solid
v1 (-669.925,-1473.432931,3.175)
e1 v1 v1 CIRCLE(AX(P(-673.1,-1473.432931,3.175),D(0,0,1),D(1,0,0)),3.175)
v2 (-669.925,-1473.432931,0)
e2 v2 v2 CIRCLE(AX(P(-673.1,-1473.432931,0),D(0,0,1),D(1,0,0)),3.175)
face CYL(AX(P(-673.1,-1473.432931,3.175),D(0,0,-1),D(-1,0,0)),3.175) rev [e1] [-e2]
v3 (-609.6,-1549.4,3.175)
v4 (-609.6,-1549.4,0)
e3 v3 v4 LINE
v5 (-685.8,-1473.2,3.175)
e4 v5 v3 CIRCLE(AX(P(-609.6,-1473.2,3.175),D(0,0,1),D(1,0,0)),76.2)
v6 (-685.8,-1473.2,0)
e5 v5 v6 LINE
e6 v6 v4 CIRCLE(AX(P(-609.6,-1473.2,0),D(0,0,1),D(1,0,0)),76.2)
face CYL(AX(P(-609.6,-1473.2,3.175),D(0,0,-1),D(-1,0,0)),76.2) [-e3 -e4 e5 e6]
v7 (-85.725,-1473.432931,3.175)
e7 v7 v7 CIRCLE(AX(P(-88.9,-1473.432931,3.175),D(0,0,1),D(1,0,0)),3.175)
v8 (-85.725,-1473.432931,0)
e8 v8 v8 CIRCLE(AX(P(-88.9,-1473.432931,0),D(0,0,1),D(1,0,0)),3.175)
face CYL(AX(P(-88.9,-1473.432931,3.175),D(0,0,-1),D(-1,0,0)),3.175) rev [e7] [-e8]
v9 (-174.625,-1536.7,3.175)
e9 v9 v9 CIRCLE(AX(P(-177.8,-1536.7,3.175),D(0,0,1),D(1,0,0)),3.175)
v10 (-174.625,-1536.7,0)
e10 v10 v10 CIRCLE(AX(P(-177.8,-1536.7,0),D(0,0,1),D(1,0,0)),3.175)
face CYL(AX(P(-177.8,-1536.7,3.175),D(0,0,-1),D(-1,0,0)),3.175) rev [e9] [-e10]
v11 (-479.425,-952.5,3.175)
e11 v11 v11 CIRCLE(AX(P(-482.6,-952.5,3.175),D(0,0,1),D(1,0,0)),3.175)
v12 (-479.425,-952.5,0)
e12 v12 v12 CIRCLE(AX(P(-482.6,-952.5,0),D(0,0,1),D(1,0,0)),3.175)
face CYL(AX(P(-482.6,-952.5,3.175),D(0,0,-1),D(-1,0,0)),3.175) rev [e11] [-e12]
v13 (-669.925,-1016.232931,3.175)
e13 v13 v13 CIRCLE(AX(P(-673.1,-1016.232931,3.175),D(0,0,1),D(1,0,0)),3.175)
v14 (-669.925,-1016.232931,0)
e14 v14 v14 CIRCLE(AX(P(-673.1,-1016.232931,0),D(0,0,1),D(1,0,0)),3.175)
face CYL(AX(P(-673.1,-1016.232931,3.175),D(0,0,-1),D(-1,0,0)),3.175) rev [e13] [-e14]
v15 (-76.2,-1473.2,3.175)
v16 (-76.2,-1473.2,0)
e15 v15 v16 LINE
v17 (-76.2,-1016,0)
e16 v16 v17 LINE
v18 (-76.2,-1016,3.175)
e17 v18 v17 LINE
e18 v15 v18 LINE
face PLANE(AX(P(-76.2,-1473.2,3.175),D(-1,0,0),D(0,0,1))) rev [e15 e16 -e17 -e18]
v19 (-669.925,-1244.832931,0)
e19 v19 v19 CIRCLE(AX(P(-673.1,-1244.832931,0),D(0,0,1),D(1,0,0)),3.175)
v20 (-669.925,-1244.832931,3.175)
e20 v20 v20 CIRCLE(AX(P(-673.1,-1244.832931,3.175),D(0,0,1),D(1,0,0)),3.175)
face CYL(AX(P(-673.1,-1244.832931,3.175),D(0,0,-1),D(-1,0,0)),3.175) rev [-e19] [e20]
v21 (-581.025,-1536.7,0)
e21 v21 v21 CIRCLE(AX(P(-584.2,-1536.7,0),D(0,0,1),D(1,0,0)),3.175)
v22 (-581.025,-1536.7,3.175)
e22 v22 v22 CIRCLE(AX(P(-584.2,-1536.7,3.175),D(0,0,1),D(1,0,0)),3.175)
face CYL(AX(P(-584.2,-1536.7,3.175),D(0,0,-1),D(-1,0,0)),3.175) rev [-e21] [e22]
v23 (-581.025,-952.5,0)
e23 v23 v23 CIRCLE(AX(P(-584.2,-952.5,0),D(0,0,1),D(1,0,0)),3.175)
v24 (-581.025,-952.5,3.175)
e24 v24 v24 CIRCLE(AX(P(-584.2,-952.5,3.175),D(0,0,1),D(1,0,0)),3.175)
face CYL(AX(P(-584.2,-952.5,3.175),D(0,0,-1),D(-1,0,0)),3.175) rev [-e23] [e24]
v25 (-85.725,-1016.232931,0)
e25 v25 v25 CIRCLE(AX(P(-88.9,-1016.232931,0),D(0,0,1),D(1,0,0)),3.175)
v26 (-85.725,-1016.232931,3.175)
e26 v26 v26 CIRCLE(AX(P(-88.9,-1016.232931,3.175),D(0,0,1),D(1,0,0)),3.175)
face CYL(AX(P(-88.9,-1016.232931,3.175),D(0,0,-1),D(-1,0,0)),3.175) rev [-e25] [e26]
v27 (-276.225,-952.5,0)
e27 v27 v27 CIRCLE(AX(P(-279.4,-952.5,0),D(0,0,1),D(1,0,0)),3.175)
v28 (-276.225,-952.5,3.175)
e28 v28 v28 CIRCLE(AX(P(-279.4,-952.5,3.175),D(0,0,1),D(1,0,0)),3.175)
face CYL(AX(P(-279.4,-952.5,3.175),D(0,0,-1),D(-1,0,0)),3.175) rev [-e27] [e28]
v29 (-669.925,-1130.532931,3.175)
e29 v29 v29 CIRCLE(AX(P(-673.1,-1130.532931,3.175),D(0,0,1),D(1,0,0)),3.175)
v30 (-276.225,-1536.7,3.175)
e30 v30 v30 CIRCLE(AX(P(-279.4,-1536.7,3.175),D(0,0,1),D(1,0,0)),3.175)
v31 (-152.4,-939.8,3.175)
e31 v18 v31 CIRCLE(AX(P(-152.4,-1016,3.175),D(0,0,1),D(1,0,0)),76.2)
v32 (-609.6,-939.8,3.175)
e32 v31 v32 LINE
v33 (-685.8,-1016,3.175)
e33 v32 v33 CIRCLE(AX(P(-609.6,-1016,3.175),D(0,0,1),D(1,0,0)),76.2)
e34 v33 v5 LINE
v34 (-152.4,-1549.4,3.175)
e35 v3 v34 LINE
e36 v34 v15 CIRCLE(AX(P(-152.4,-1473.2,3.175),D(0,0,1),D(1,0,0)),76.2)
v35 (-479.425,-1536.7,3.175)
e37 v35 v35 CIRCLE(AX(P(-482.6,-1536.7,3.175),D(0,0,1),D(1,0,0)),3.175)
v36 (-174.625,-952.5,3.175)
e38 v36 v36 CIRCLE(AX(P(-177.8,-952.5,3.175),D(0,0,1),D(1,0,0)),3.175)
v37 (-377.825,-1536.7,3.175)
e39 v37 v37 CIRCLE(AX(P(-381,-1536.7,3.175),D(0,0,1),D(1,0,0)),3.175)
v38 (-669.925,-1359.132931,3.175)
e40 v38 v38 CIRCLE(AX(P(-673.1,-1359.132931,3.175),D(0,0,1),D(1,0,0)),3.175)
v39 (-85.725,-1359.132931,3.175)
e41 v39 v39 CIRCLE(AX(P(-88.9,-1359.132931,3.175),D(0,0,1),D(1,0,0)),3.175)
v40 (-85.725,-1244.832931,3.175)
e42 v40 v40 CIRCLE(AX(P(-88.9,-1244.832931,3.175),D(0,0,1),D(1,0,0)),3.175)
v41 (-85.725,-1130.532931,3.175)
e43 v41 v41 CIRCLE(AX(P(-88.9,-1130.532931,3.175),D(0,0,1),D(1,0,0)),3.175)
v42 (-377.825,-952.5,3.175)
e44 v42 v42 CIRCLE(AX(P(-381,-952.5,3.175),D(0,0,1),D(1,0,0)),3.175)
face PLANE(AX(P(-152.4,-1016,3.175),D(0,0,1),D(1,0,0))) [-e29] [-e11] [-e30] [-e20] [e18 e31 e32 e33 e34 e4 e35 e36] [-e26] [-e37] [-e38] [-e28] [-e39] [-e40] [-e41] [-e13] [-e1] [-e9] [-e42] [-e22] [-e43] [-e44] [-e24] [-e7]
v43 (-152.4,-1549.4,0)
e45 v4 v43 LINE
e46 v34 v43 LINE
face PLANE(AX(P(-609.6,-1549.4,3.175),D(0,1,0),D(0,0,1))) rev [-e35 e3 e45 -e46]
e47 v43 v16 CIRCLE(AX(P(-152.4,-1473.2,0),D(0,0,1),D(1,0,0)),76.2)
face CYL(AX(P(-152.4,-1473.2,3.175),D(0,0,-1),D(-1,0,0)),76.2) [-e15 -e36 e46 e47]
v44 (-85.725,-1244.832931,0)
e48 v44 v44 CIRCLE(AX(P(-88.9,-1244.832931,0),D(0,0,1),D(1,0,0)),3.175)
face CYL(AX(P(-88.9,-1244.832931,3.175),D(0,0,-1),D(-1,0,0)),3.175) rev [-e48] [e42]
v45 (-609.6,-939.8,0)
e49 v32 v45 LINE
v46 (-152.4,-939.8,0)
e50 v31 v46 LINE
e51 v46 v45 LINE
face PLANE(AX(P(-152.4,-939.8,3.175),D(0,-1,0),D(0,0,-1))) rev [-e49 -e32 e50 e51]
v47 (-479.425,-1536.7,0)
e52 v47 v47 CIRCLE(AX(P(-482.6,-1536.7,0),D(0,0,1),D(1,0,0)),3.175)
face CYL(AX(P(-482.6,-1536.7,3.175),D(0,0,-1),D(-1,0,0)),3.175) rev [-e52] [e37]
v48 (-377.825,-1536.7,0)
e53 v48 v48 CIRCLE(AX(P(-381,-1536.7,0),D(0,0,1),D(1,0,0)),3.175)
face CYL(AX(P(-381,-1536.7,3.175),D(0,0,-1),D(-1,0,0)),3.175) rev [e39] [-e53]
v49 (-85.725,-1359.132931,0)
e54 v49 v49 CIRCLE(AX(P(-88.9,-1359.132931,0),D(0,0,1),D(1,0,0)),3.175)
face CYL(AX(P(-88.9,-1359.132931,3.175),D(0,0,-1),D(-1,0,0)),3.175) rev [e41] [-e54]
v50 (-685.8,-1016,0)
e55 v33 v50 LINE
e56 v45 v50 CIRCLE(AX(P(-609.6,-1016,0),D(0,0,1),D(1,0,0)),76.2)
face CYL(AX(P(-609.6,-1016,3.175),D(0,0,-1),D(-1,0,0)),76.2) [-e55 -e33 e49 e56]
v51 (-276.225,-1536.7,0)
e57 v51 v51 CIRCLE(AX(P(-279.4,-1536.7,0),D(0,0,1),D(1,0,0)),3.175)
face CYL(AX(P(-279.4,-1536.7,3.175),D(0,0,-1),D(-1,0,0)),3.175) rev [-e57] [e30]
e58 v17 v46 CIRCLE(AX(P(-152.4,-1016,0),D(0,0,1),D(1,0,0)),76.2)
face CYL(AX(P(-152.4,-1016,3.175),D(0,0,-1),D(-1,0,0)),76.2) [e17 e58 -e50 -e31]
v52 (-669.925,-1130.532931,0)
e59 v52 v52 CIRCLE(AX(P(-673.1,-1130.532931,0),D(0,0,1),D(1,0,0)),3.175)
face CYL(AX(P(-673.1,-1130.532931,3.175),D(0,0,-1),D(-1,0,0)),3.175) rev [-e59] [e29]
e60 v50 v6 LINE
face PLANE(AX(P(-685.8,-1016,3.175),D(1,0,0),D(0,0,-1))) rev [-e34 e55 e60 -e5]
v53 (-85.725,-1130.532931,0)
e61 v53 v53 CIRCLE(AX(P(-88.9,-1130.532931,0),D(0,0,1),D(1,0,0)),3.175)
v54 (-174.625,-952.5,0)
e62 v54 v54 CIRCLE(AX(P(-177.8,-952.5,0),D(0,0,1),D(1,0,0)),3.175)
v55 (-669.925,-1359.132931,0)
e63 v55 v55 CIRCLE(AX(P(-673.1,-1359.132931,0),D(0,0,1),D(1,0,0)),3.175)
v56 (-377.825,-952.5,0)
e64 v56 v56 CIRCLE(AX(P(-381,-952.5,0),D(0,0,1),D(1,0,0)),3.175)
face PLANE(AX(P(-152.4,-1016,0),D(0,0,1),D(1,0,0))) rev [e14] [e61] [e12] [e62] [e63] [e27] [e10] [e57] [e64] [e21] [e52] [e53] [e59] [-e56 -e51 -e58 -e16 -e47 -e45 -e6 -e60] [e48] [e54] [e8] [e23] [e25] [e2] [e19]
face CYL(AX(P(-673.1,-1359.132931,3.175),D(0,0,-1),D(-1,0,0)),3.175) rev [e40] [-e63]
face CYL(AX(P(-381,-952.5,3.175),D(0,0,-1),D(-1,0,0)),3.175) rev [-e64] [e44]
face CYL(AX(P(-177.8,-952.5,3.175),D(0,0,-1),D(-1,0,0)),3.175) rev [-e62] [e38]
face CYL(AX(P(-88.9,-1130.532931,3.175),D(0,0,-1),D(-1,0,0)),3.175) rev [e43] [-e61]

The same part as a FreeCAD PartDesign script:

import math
import FreeCAD as App
import Part
import Sketcher

V = App.Vector
Q = App.Units.Quantity

doc = App.newDocument("Part")
body = doc.addObject("PartDesign::Body", "Body")

# Sketch on XY plane
sketch1 = doc.addObject("Sketcher::SketchObject", "Sketch")
body.addObject(sketch1)
sketch1.AttachmentSupport = (doc.XY_Plane, [""])
sketch1.MapMode = "FlatFace"
sketch1.addGeometry([
    Part.LineSegment(V(-152.4, -939.8, 0), V(-609.6, -939.8, 0)),  # 0
    Part.ArcOfCircle(Part.Circle(V(-609.6, -1016, 0), V(0, 0, 1), 76.2), math.radians(90), math.radians(180)),  # 1
    Part.LineSegment(V(-685.8, -1016, 0), V(-685.8, -1473.2, 0)),  # 2
    Part.ArcOfCircle(Part.Circle(V(-609.6, -1473.2, 0), V(0, 0, 1), 76.2), math.radians(-180), math.radians(-90)),  # 3
    Part.LineSegment(V(-609.6, -1549.4, 0), V(-152.4, -1549.4, 0)),  # 4
    Part.ArcOfCircle(Part.Circle(V(-152.4, -1473.2, 0), V(0, 0, 1), 76.2), math.radians(-90), math.radians(0)),  # 5
    Part.LineSegment(V(-76.2, -1473.2, 0), V(-76.2, -1016, 0)),  # 6
    Part.ArcOfCircle(Part.Circle(V(-152.4, -1016, 0), V(0, 0, 1), 76.2), math.radians(0), math.radians(90)),  # 7
    Part.Circle(V(-673.1, -1473.4, 0), V(0, 0, 1), 3.2),  # 8
    Part.Circle(V(-584.2, -1536.7, 0), V(0, 0, 1), 3.2),  # 9
    Part.Circle(V(-482.6, -1536.7, 0), V(0, 0, 1), 3.2),  # 10
    Part.Circle(V(-673.1, -1359.1, 0), V(0, 0, 1), 3.2),  # 11
    Part.Circle(V(-673.1, -1244.8, 0), V(0, 0, 1), 3.2),  # 12
    Part.Circle(V(-381, -1536.7, 0), V(0, 0, 1), 3.2),  # 13
    Part.Circle(V(-279.4, -1536.7, 0), V(0, 0, 1), 3.2),  # 14
    Part.Circle(V(-177.8, -1536.7, 0), V(0, 0, 1), 3.2),  # 15
    Part.Circle(V(-88.9, -1473.4, 0), V(0, 0, 1), 3.2),  # 16
    Part.Circle(V(-88.9, -1359.1, 0), V(0, 0, 1), 3.2),  # 17
    Part.Circle(V(-88.9, -1244.8, 0), V(0, 0, 1), 3.2),  # 18
    Part.Circle(V(-673.1, -1130.5, 0), V(0, 0, 1), 3.2),  # 19
    Part.Circle(V(-673.1, -1016.2, 0), V(0, 0, 1), 3.2),  # 20
    Part.Circle(V(-584.2, -952.5, 0), V(0, 0, 1), 3.2),  # 21
    Part.Circle(V(-482.6, -952.5, 0), V(0, 0, 1), 3.2),  # 22
    Part.Circle(V(-88.9, -1130.5, 0), V(0, 0, 1), 3.2),  # 23
    Part.Circle(V(-381, -952.5, 0), V(0, 0, 1), 3.2),  # 24
    Part.Circle(V(-279.4, -952.5, 0), V(0, 0, 1), 3.2),  # 25
    Part.Circle(V(-177.8, -952.5, 0), V(0, 0, 1), 3.2),  # 26
    Part.Circle(V(-88.9, -1016.2, 0), V(0, 0, 1), 3.2),  # 27
], False)
sketch1.addConstraint([
    Sketcher.Constraint("Tangent", 0, 2, 1, 1),
    Sketcher.Constraint("Tangent", 1, 2, 2, 1),
    Sketcher.Constraint("Tangent", 2, 2, 3, 1),
    Sketcher.Constraint("Tangent", 3, 2, 4, 1),
    Sketcher.Constraint("Tangent", 4, 2, 5, 1),
    Sketcher.Constraint("Tangent", 5, 2, 6, 1),
    Sketcher.Constraint("Tangent", 6, 2, 7, 1),
    Sketcher.Constraint("Tangent", 7, 2, 0, 1),
    Sketcher.Constraint("Horizontal", 0),
    Sketcher.Constraint("Vertical", 2),
    Sketcher.Constraint("Horizontal", 4),
    Sketcher.Constraint("Vertical", 6),
    Sketcher.Constraint("Equal", 1, 3),
    Sketcher.Constraint("Equal", 3, 5),
    Sketcher.Constraint("Equal", 5, 7),
    Sketcher.Constraint("Equal", 8, 9),
    Sketcher.Constraint("Equal", 9, 10),
    Sketcher.Constraint("Equal", 10, 11),
    Sketcher.Constraint("Equal", 11, 12),
    Sketcher.Constraint("Equal", 12, 13),
    Sketcher.Constraint("Equal", 13, 14),
    Sketcher.Constraint("Equal", 14, 15),
    Sketcher.Constraint("Equal", 15, 16),
    Sketcher.Constraint("Equal", 16, 17),
    Sketcher.Constraint("Equal", 17, 18),
    Sketcher.Constraint("Equal", 18, 19),
    Sketcher.Constraint("Equal", 19, 20),
    Sketcher.Constraint("Equal", 20, 21),
    Sketcher.Constraint("Equal", 21, 22),
    Sketcher.Constraint("Equal", 22, 23),
    Sketcher.Constraint("Equal", 23, 24),
    Sketcher.Constraint("Equal", 24, 25),
    Sketcher.Constraint("Equal", 25, 26),
    Sketcher.Constraint("Equal", 26, 27),
    Sketcher.Constraint("Horizontal", 9, 3, 10, 3),
    Sketcher.Constraint("Horizontal", 10, 3, 13, 3),
    Sketcher.Constraint("Horizontal", 13, 3, 14, 3),
    Sketcher.Constraint("Horizontal", 14, 3, 15, 3),
    Sketcher.Constraint("Horizontal", 8, 3, 16, 3),
    Sketcher.Constraint("Horizontal", 11, 3, 17, 3),
    Sketcher.Constraint("Horizontal", 12, 3, 18, 3),
    Sketcher.Constraint("Horizontal", 21, 3, 22, 3),
    Sketcher.Constraint("Horizontal", 19, 3, 23, 3),
    Sketcher.Constraint("Horizontal", 22, 3, 24, 3),
    Sketcher.Constraint("Horizontal", 24, 3, 25, 3),
    Sketcher.Constraint("Horizontal", 25, 3, 26, 3),
    Sketcher.Constraint("Horizontal", 20, 3, 27, 3),
    Sketcher.Constraint("Vertical", 8, 3, 11, 3),
    Sketcher.Constraint("Vertical", 11, 3, 12, 3),
    Sketcher.Constraint("Vertical", 16, 3, 17, 3),
    Sketcher.Constraint("Vertical", 17, 3, 18, 3),
    Sketcher.Constraint("Vertical", 12, 3, 19, 3),
    Sketcher.Constraint("Vertical", 19, 3, 20, 3),
    Sketcher.Constraint("Vertical", 9, 3, 21, 3),
    Sketcher.Constraint("Vertical", 10, 3, 22, 3),
    Sketcher.Constraint("Vertical", 18, 3, 23, 3),
    Sketcher.Constraint("Vertical", 13, 3, 24, 3),
    Sketcher.Constraint("Vertical", 14, 3, 25, 3),
    Sketcher.Constraint("Vertical", 15, 3, 26, 3),
    Sketcher.Constraint("Vertical", 23, 3, 27, 3),
    Sketcher.Constraint("Equal", 4, 2),
    Sketcher.Constraint("Radius", 1, Q("3 in")),
    Sketcher.Constraint("Diameter", 8, Q("0.25 in")),
    Sketcher.Constraint("DistanceX", 0, 2, 0, 1, Q("18 in")),
    Sketcher.Constraint("DistanceX", 1, 3, -1, 1, Q("24 in")),
    Sketcher.Constraint("DistanceY", 1, 3, -1, 1, Q("40 in")),
    Sketcher.Constraint("DistanceX", 9, 3, -1, 1, Q("23 in")),
    Sketcher.Constraint("DistanceX", 10, 3, -1, 1, Q("19 in")),
    Sketcher.Constraint("DistanceX", 13, 3, -1, 1, Q("15 in")),
    Sketcher.Constraint("DistanceX", 14, 3, -1, 1, Q("11 in")),
    Sketcher.Constraint("DistanceX", 15, 3, -1, 1, Q("7 in")),
    Sketcher.Constraint("DistanceY", 8, 3, 12, 3, Q("9 in")),
    Sketcher.Constraint("DistanceY", 11, 3, 19, 3, Q("9 in")),
    Sketcher.Constraint("DistanceY", 12, 3, 20, 3, Q("9 in")),
    Sketcher.Constraint("DistanceX", 8, 3, -1, 1, Q("26.5 in")),
    Sketcher.Constraint("DistanceY", 9, 3, -1, 1, Q("60.5 in")),
    Sketcher.Constraint("DistanceX", 16, 3, -1, 1, Q("3.5 in")),
    Sketcher.Constraint("DistanceY", 21, 3, -1, 1, Q("37.5 in")),
    Sketcher.Constraint("DistanceY", 8, 3, 11, 3, Q("4.5 in")),
    Sketcher.Constraint("DistanceY", 8, 3, -1, 1, 1473.432931),
])
pad1 = doc.addObject("PartDesign::Pad", "Pad")
body.addObject(pad1)
pad1.Profile = sketch1
pad1.Length = Q("0.125 in")

doc.recompute()
